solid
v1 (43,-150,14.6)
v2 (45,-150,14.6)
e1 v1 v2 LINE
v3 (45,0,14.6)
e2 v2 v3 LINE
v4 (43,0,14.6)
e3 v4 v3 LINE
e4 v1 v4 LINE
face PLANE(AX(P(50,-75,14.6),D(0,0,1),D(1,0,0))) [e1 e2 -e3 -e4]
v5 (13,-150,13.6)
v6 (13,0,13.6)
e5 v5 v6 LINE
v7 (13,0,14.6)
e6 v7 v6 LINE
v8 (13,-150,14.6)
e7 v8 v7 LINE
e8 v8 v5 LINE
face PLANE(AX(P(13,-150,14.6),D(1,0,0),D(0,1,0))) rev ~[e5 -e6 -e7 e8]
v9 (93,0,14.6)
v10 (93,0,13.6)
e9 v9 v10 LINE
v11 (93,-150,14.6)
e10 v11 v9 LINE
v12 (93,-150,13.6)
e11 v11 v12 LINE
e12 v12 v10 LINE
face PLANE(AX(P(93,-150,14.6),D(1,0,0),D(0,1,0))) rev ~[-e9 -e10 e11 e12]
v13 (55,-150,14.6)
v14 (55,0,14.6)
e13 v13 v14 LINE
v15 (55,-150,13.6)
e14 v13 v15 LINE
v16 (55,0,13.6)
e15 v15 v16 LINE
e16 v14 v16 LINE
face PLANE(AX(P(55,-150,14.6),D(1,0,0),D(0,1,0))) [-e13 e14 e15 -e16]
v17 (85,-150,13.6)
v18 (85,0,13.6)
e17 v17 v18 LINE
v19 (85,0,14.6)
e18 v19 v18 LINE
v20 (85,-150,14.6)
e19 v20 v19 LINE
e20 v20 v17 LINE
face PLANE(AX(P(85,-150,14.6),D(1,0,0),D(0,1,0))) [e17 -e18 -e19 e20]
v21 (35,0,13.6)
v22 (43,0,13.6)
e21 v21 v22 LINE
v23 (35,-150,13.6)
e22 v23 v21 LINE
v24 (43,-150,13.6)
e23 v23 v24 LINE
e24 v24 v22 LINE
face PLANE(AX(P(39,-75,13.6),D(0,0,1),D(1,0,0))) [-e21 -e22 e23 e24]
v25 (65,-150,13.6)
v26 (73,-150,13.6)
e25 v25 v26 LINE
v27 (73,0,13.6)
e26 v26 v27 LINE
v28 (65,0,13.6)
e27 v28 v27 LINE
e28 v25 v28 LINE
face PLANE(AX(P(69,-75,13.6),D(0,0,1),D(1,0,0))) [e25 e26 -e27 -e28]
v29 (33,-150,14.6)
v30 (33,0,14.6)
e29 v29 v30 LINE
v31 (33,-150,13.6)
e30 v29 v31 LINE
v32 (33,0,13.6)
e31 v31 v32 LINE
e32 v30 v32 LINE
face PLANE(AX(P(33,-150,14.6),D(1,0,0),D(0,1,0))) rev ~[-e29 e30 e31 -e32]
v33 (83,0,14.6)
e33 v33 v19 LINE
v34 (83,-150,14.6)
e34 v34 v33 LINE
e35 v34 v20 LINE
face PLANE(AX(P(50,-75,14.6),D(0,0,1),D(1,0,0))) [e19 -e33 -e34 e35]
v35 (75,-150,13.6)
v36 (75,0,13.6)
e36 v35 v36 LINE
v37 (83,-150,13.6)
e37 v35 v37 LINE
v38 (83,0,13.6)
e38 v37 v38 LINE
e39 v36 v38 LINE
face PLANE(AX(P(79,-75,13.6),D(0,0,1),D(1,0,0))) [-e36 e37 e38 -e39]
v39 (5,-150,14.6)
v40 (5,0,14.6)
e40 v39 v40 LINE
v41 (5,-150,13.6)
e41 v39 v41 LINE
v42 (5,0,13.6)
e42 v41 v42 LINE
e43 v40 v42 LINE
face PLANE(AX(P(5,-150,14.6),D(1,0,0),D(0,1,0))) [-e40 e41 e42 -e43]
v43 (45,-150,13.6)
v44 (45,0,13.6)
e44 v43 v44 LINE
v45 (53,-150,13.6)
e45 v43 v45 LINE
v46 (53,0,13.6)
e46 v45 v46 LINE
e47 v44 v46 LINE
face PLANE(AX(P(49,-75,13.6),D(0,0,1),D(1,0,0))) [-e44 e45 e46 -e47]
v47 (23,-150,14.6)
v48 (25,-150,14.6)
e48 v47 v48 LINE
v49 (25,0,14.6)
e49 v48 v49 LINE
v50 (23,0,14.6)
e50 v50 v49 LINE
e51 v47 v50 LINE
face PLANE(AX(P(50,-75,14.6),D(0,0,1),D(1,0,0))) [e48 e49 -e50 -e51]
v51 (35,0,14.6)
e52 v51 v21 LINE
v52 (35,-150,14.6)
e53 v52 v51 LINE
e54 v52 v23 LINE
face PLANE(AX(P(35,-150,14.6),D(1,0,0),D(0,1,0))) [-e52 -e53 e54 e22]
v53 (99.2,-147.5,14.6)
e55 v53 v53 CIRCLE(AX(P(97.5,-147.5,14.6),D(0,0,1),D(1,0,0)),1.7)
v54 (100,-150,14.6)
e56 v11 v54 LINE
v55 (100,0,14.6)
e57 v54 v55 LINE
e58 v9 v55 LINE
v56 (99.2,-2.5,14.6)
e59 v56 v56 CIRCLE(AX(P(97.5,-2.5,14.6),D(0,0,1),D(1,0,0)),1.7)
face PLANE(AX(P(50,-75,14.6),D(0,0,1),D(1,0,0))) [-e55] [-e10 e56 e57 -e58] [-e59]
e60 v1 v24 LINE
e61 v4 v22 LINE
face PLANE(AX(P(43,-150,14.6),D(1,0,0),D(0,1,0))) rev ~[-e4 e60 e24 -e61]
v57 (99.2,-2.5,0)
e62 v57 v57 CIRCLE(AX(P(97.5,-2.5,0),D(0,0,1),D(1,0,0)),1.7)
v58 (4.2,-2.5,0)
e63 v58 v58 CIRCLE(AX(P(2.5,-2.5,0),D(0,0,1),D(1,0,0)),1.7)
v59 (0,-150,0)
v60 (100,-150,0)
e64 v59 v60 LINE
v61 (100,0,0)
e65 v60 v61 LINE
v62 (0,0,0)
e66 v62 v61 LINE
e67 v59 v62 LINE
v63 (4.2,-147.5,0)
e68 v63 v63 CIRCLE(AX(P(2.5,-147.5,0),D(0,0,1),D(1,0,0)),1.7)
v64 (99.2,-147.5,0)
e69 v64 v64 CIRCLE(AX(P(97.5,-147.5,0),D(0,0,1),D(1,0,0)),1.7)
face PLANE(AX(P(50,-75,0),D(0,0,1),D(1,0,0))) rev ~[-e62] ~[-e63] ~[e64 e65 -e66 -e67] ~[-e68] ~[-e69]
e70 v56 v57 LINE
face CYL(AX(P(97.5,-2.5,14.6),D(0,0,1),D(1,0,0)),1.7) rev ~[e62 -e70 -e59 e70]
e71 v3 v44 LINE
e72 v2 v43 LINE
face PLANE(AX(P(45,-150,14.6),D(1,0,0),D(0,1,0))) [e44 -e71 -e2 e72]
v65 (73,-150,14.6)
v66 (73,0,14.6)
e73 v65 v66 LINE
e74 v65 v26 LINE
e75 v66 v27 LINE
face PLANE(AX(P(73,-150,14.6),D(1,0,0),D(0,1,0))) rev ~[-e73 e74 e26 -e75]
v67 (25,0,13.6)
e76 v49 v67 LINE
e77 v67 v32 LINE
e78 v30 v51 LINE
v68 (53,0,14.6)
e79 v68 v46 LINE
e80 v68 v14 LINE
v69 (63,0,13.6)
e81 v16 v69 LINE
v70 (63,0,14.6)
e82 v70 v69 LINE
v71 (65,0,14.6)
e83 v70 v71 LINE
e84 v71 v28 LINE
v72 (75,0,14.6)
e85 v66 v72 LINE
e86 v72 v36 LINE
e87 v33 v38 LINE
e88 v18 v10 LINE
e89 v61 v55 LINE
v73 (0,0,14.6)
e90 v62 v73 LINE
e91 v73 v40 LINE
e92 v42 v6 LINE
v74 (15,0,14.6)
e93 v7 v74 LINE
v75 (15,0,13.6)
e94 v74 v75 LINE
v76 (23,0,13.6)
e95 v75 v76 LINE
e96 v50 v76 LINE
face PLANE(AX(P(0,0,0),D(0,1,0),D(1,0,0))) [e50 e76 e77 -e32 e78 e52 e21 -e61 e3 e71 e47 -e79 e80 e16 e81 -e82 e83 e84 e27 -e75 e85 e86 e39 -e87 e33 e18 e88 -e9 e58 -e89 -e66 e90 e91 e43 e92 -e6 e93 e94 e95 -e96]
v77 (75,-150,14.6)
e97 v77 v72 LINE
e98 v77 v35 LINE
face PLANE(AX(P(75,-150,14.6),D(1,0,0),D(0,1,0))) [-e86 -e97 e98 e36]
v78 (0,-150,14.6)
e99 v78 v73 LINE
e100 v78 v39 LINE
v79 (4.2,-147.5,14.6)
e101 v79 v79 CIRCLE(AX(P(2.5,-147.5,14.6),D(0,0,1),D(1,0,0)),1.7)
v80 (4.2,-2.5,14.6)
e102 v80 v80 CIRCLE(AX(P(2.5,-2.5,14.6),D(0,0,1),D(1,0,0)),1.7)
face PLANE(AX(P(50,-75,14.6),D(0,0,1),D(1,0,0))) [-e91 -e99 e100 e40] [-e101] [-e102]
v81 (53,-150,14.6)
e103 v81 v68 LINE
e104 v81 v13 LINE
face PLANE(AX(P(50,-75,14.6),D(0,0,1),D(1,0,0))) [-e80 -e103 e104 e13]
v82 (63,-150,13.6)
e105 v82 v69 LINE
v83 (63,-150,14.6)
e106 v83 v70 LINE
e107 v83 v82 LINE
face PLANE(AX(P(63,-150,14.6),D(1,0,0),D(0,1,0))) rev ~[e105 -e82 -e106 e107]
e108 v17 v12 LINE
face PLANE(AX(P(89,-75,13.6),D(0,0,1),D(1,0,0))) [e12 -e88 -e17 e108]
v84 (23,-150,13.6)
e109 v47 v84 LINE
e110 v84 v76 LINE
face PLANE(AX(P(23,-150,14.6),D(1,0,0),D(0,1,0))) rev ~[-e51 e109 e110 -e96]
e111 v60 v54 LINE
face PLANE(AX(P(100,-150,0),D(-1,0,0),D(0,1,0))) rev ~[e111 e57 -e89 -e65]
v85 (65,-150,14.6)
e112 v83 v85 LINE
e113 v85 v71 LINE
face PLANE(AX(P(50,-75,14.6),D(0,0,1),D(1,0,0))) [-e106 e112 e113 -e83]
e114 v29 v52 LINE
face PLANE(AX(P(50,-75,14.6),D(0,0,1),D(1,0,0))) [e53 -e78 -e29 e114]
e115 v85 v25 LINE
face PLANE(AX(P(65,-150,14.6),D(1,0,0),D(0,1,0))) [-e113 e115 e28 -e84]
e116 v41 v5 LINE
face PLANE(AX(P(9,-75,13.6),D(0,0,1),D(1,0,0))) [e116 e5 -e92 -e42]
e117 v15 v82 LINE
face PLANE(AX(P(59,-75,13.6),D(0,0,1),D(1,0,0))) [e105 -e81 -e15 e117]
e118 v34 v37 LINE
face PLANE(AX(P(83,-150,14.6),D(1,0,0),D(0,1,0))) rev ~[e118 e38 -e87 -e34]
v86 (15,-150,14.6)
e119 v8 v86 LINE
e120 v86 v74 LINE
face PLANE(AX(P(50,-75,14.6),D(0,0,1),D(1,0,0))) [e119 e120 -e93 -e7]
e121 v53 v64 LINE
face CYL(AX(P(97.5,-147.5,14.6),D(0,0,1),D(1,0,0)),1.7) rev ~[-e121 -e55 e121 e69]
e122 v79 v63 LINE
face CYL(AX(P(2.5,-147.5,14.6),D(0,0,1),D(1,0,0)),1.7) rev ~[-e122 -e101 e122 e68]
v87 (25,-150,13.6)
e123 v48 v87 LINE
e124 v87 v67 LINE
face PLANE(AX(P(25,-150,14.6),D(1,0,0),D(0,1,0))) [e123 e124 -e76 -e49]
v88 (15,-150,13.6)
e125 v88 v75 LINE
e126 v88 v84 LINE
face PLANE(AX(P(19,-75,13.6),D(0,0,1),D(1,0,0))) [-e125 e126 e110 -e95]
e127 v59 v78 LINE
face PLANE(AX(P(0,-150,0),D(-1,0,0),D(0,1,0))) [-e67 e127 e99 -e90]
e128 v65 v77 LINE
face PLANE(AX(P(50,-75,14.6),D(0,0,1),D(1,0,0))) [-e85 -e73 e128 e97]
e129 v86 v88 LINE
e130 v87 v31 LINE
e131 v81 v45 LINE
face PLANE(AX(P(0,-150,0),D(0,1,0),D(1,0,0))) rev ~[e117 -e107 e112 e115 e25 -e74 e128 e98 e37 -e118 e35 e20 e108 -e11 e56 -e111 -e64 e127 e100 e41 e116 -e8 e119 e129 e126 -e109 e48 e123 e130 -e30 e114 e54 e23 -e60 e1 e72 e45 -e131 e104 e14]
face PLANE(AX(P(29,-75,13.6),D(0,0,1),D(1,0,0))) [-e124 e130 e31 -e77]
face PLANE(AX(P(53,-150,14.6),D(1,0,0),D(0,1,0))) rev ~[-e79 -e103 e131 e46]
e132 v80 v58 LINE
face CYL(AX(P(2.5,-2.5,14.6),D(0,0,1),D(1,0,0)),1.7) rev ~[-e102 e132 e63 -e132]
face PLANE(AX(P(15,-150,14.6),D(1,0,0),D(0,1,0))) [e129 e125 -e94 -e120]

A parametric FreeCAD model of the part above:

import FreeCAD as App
import Part
import Sketcher


def add_polygon(sketch, points):
    """Adds a closed chain of lines whose ends are joined by coincident constraints."""
    first, n = sketch.GeometryCount, len(points)
    for a, b in zip(points, points[1:] + points[:1]):
        sketch.addGeometry(Part.LineSegment(App.Vector(*a, 0), App.Vector(*b, 0)), False)
    for i in range(n):
        sketch.addConstraint(Sketcher.Constraint("Coincident", first + i, 2, first + (i + 1) % n, 1))

doc = App.newDocument("Part")
body = doc.addObject("PartDesign::Body", "Body")

sketch1 = body.newObject("Sketcher::SketchObject", "Sketch")
sketch1.AttachmentSupport = (doc.getObject("XY_Plane"), [""])
sketch1.MapMode = "FlatFace"
add_polygon(sketch1, [(0, 0), (0, -150), (100, -150), (100, 0)])
sketch1.addConstraint(Sketcher.Constraint("Vertical", 0))
sketch1.addConstraint(Sketcher.Constraint("Horizontal", 1))
sketch1.addConstraint(Sketcher.Constraint("Vertical", 2))
sketch1.addConstraint(Sketcher.Constraint("Horizontal", 3))
sketch1.addConstraint(Sketcher.Constraint("Coincident", 3, 2, -1, 1))
sketch1.addConstraint(Sketcher.Constraint("DistanceX", 1, 1, 1, 2, 100.0))
sketch1.addConstraint(Sketcher.Constraint("DistanceY", 0, 2, 0, 1, 150.0))
pad1 = body.newObject("PartDesign::Pad", "Pad")
pad1.Profile = sketch1
pad1.Length = 14.6

sketch2 = body.newObject("Sketcher::SketchObject", "Sketch001")
sketch2.AttachmentSupport = (doc.getObject("XY_Plane"), [""])
sketch2.MapMode = "FlatFace"
sketch2.AttachmentOffset = App.Placement(App.Vector(0, 0, 14.6), App.Rotation())
add_polygon(sketch2, [(5, 0), (5, -150), (13, -150), (13, 0)])
add_polygon(sketch2, [(15, 0), (15, -150), (23, -150), (23, 0)])
add_polygon(sketch2, [(25, 0), (25, -150), (33, -150), (33, 0)])
add_polygon(sketch2, [(35, 0), (35, -150), (43, -150), (43, 0)])
add_polygon(sketch2, [(45, 0), (45, -150), (53, -150), (53, 0)])
add_polygon(sketch2, [(55, 0), (55, -150), (63, -150), (63, 0)])
add_polygon(sketch2, [(65, 0), (65, -150), (73, -150), (73, 0)])
add_polygon(sketch2, [(75, 0), (75, -150), (83, -150), (83, 0)])
add_polygon(sketch2, [(85, 0), (85, -150), (93, -150), (93, 0)])
sketch2.addConstraint(Sketcher.Constraint("Vertical", 0))
sketch2.addConstraint(Sketcher.Constraint("Horizontal", 1))
sketch2.addConstraint(Sketcher.Constraint("Vertical", 2))
sketch2.addConstraint(Sketcher.Constraint("Horizontal", 3))
sketch2.addConstraint(Sketcher.Constraint("Vertical", 4))
sketch2.addConstraint(Sketcher.Constraint("Horizontal", 5))
sketch2.addConstraint(Sketcher.Constraint("Vertical", 6))
sketch2.addConstraint(Sketcher.Constraint("Horizontal", 7))
sketch2.addConstraint(Sketcher.Constraint("Vertical", 8))
sketch2.addConstraint(Sketcher.Constraint("Horizontal", 9))
sketch2.addConstraint(Sketcher.Constraint("Vertical", 10))
sketch2.addConstraint(Sketcher.Constraint("Horizontal", 11))
sketch2.addConstraint(Sketcher.Constraint("Vertical", 12))
sketch2.addConstraint(Sketcher.Constraint("Horizontal", 13))
sketch2.addConstraint(Sketcher.Constraint("Vertical", 14))
sketch2.addConstraint(Sketcher.Constraint("Horizontal", 15))
sketch2.addConstraint(Sketcher.Constraint("Vertical", 16))
sketch2.addConstraint(Sketcher.Constraint("Horizontal", 17))
sketch2.addConstraint(Sketcher.Constraint("Vertical", 18))
sketch2.addConstraint(Sketcher.Constraint("Horizontal", 19))
sketch2.addConstraint(Sketcher.Constraint("Vertical", 20))
sketch2.addConstraint(Sketcher.Constraint("Horizontal", 21))
sketch2.addConstraint(Sketcher.Constraint("Vertical", 22))
sketch2.addConstraint(Sketcher.Constraint("Horizontal", 23))
sketch2.addConstraint(Sketcher.Constraint("Vertical", 24))
sketch2.addConstraint(Sketcher.Constraint("Horizontal", 25))
sketch2.addConstraint(Sketcher.Constraint("Vertical", 26))
sketch2.addConstraint(Sketcher.Constraint("Horizontal", 27))
sketch2.addConstraint(Sketcher.Constraint("Vertical", 28))
sketch2.addConstraint(Sketcher.Constraint("Horizontal", 29))
sketch2.addConstraint(Sketcher.Constraint("Vertical", 30))
sketch2.addConstraint(Sketcher.Constraint("Horizontal", 31))
sketch2.addConstraint(Sketcher.Constraint("Vertical", 32))
sketch2.addConstraint(Sketcher.Constraint("Horizontal", 33))
sketch2.addConstraint(Sketcher.Constraint("Vertical", 34))
sketch2.addConstraint(Sketcher.Constraint("Horizontal", 35))
sketch2.addConstraint(Sketcher.Constraint("PointOnObject", 2, 2, -1))
sketch2.addConstraint(Sketcher.Constraint("PointOnObject", 6, 2, -1))
sketch2.addConstraint(Sketcher.Constraint("PointOnObject", 10, 2, -1))
sketch2.addConstraint(Sketcher.Constraint("PointOnObject", 14, 2, -1))
sketch2.addConstraint(Sketcher.Constraint("PointOnObject", 18, 2, -1))
sketch2.addConstraint(Sketcher.Constraint("PointOnObject", 22, 2, -1))
sketch2.addConstraint(Sketcher.Constraint("PointOnObject", 26, 2, -1))
sketch2.addConstraint(Sketcher.Constraint("PointOnObject", 30, 2, -1))
sketch2.addConstraint(Sketcher.Constraint("PointOnObject", 34, 2, -1))
sketch2.addConstraint(Sketcher.Constraint("Horizontal", 1, 2, 4, 2))
sketch2.addConstraint(Sketcher.Constraint("Horizontal", 5, 2, 8, 2))
sketch2.addConstraint(Sketcher.Constraint("Horizontal", 9, 2, 12, 2))
sketch2.addConstraint(Sketcher.Constraint("Horizontal", 13, 2, 16, 2))
sketch2.addConstraint(Sketcher.Constraint("Horizontal", 17, 2, 20, 2))
sketch2.addConstraint(Sketcher.Constraint("Horizontal", 21, 2, 24, 2))
sketch2.addConstraint(Sketcher.Constraint("Horizontal", 25, 2, 28, 2))
sketch2.addConstraint(Sketcher.Constraint("Horizontal", 29, 2, 32, 2))
sketch2.addConstraint(Sketcher.Constraint("Equal", 3, 5))
sketch2.addConstraint(Sketcher.Constraint("Equal", 7, 9))
sketch2.addConstraint(Sketcher.Constraint("Equal", 11, 13))
sketch2.addConstraint(Sketcher.Constraint("Equal", 15, 17))
sketch2.addConstraint(Sketcher.Constraint("Equal", 19, 21))
sketch2.addConstraint(Sketcher.Constraint("Equal", 23, 25))
sketch2.addConstraint(Sketcher.Constraint("Equal", 27, 29))
sketch2.addConstraint(Sketcher.Constraint("Equal", 31, 33))
sketch2.addConstraint(Sketcher.Constraint("DistanceX", 1, 1, 1, 2, 8.0))
sketch2.addConstraint(Sketcher.Constraint("DistanceY", 0, 2, 0, 1, 150.0))
sketch2.addConstraint(Sketcher.Constraint("DistanceX", -1, 1, 0, 2, 5.0))
sketch2.addConstraint(Sketcher.Constraint("DistanceX", -1, 1, 4, 2, 15.0))
sketch2.addConstraint(Sketcher.Constraint("DistanceX", -1, 1, 8, 2, 25.0))
sketch2.addConstraint(Sketcher.Constraint("DistanceX", -1, 1, 12, 2, 35.0))
sketch2.addConstraint(Sketcher.Constraint("DistanceX", -1, 1, 16, 2, 45.0))
sketch2.addConstraint(Sketcher.Constraint("DistanceX", -1, 1, 20, 2, 55.0))
sketch2.addConstraint(Sketcher.Constraint("DistanceX", -1, 1, 24, 2, 65.0))
sketch2.addConstraint(Sketcher.Constraint("DistanceX", -1, 1, 28, 2, 75.0))
sketch2.addConstraint(Sketcher.Constraint("DistanceX", -1, 1, 32, 2, 85.0))
pocket1 = body.newObject("PartDesign::Pocket", "Pocket")
pocket1.Profile = sketch2
pocket1.Length = 1

sketch3 = body.newObject("Sketcher::SketchObject", "Sketch002")
sketch3.AttachmentSupport = (doc.getObject("XY_Plane"), [""])
sketch3.MapMode = "FlatFace"
sketch3.AttachmentOffset = App.Placement(App.Vector(0, 0, 14.6), App.Rotation())
sketch3.addGeometry(Part.Circle(App.Vector(2.5, -2.5, 0), App.Vector(0, 0, 1), 1.7), False)
sketch3.addGeometry(Part.Circle(App.Vector(2.5, -147.5, 0), App.Vector(0, 0, 1), 1.7), False)
sketch3.addGeometry(Part.Circle(App.Vector(97.5, -147.5, 0), App.Vector(0, 0, 1), 1.7), False)
sketch3.addGeometry(Part.Circle(App.Vector(97.5, -2.5, 0), App.Vector(0, 0, 1), 1.7), False)
sketch3.addConstraint(Sketcher.Constraint("Equal", 0, 1))
sketch3.addConstraint(Sketcher.Constraint("Equal", 1, 2))
sketch3.addConstraint(Sketcher.Constraint("Equal", 2, 3))
sketch3.addConstraint(Sketcher.Constraint("Horizontal", 1, 3, 2, 3))
sketch3.addConstraint(Sketcher.Constraint("Horizontal", 0, 3, 3, 3))
sketch3.addConstraint(Sketcher.Constraint("Vertical", 0, 3, 1, 3))
sketch3.addConstraint(Sketcher.Constraint("Vertical", 2, 3, 3, 3))
sketch3.addConstraint(Sketcher.Constraint("Diameter", 0, 3.4))
sketch3.addConstraint(Sketcher.Constraint("DistanceY", 1, 3, 0, 3, 145.0))
sketch3.addConstraint(Sketcher.Constraint("DistanceX", 1, 3, 2, 3, 95.0))
sketch3.addConstraint(Sketcher.Constraint("DistanceX", -1, 1, 0, 3, 2.5))
sketch3.addConstraint(Sketcher.Constraint("DistanceY", 0, 3, -1, 1, 2.5))
pocket2 = body.newObject("PartDesign::Pocket", "Pocket001")
pocket2.Profile = sketch3
pocket2.Length = 25

doc.recompute()
